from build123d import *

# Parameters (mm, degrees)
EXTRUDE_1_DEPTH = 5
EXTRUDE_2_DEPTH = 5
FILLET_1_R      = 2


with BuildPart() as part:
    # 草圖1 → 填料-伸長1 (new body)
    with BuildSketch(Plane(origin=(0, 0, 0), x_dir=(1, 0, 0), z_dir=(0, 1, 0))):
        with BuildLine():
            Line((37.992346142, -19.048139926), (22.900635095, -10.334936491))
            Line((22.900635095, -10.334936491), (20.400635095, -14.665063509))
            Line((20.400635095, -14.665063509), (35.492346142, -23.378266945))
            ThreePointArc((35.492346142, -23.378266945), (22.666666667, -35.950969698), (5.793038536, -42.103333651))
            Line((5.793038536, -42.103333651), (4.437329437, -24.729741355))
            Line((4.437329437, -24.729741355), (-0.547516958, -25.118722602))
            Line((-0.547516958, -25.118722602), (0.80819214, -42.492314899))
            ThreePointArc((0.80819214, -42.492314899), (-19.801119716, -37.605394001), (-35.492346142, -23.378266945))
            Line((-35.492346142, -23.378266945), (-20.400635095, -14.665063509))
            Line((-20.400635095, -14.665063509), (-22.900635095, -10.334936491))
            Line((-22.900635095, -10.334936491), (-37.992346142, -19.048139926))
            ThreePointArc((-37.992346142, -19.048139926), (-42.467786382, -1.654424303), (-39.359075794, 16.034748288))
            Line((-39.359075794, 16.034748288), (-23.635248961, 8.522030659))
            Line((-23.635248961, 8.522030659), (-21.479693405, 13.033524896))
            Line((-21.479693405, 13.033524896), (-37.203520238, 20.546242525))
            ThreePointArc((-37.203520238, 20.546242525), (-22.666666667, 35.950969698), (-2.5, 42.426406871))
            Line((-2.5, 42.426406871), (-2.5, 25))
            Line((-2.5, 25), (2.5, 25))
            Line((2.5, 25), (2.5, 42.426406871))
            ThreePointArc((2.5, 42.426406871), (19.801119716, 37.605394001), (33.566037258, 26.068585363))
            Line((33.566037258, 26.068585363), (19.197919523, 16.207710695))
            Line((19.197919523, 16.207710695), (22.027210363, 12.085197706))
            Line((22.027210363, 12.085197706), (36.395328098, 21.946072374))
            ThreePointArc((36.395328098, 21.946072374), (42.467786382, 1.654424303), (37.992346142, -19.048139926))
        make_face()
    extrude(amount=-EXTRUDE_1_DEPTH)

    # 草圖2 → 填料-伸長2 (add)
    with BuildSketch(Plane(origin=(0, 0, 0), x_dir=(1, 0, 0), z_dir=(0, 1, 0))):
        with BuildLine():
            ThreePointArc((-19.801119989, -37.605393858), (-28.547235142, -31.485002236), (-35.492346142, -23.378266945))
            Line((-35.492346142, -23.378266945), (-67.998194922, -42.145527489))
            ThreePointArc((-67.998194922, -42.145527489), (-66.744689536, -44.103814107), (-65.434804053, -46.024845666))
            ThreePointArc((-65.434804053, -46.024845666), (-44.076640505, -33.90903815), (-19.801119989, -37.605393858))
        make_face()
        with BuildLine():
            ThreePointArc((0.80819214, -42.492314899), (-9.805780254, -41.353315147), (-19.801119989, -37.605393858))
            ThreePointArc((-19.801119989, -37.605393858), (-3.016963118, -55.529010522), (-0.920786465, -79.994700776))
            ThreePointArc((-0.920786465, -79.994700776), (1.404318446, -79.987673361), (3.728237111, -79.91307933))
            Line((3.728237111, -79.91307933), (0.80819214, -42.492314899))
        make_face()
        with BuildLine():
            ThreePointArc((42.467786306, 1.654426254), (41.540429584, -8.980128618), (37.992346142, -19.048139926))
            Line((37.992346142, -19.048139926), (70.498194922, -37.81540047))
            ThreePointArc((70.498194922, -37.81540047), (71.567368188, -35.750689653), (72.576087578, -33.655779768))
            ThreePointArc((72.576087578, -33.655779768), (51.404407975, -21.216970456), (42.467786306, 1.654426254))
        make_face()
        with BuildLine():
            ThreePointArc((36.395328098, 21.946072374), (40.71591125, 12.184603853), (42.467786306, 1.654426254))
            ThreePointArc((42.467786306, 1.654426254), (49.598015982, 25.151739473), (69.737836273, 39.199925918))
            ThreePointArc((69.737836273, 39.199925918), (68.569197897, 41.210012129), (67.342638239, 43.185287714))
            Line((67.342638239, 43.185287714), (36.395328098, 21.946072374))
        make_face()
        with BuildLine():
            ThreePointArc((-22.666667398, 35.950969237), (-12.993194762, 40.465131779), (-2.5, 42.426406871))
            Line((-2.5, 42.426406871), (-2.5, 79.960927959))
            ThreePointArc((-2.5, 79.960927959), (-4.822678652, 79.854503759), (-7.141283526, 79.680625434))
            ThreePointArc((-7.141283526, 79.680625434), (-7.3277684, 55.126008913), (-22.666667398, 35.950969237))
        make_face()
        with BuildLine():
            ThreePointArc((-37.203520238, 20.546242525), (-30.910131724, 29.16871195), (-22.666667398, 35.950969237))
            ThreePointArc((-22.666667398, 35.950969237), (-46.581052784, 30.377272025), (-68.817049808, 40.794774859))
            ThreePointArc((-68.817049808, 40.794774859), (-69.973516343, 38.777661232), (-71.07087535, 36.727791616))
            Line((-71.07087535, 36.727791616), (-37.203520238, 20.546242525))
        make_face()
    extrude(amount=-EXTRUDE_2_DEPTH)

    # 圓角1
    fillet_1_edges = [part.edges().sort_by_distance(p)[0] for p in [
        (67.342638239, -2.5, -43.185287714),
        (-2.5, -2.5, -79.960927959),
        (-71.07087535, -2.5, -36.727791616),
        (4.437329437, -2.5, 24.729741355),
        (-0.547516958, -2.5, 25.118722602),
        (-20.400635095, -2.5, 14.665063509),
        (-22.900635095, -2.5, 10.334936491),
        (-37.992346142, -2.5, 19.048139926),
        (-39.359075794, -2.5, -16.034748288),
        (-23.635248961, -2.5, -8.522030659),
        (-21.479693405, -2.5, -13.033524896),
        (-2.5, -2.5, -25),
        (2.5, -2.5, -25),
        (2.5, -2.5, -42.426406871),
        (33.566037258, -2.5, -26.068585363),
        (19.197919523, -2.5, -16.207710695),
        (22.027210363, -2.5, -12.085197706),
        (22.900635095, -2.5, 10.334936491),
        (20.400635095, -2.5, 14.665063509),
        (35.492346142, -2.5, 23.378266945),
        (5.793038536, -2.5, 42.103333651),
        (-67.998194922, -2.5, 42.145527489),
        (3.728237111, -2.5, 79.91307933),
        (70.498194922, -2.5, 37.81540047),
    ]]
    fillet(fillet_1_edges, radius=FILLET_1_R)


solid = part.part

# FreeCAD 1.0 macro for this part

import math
import FreeCAD as App
import Part
import Sketcher

V = App.Vector
Q = App.Units.Quantity


def edges_at(feature, points):
    """Names of the edges that pass closest to the given points."""
    edges = feature.Shape.Edges
    near = lambda p: min(range(len(edges)), key=lambda i: edges[i].distToShape(Part.Vertex(*p))[0])
    return sorted({f"Edge{near(p) + 1}" for p in points})

doc = App.newDocument("Part")
params = doc.addObject("Spreadsheet::Sheet", "Params")
for row, (alias, value) in enumerate([
    ("sketch1_radius", "42.5 mm"),
    ("sketch1_width", "5 mm"),
    ("sketch1_length", "5 mm"),
    ("pad1_length", "5 mm"),
    ("sketch2_radius", "79.999999 mm"),
    ("sketch2_radius2", "42.5 mm"),
    ("sketch2_radius3", "37.5 mm"),
    ("sketch2_width", "19.999999 mm"),
    ("pad2_length", "5 mm"),
    ("fillet_radius", "2 mm"),
], start=1):
    params.set(f"A{row}", alias)
    params.set(f"B{row}", "=" + value)
    params.setAlias(f"B{row}", alias)

body = doc.addObject("PartDesign::Body", "Body")

# Sketch on XZ plane
sketch1 = doc.addObject("Sketcher::SketchObject", "Sketch")
body.addObject(sketch1)
sketch1.AttachmentSupport = (doc.XZ_Plane, [""])
sketch1.MapMode = "FlatFace"
sketch1.addGeometry(Part.LineSegment(V(22.9, 10.3, 0), V(38, 19, 0)), False)
sketch1.addGeometry(Part.ArcOfCircle(Part.Circle(V(0, 0, 0), V(0, 0, 1), 42.5), math.radians(-31), math.radians(27)), False)
sketch1.addGeometry(Part.LineSegment(V(36.4, -21.9, 0), V(22, -12.1, 0)), False)
sketch1.addGeometry(Part.LineSegment(V(22, -12.1, 0), V(19.2, -16.2, 0)), False)
sketch1.addGeometry(Part.LineSegment(V(19.2, -16.2, 0), V(33.6, -26.1, 0)), False)
sketch1.addGeometry(Part.ArcOfCircle(Part.Circle(V(0, 0, 0), V(0, 0, 1), 42.5), math.radians(-87), math.radians(-38)), False)
sketch1.addGeometry(Part.LineSegment(V(2.5, -42.4, 0), V(2.5, -25, 0)), False)
sketch1.addGeometry(Part.LineSegment(V(2.5, -25, 0), V(-2.5, -25, 0)), False)
sketch1.addGeometry(Part.LineSegment(V(-2.5, -25, 0), V(-2.5, -42.4, 0)), False)
sketch1.addGeometry(Part.ArcOfCircle(Part.Circle(V(0, 0, 0), V(0, 0, 1), 42.5), math.radians(-151), math.radians(-93)), False)
sketch1.addGeometry(Part.LineSegment(V(-37.2, -20.5, 0), V(-21.5, -13, 0)), False)
sketch1.addGeometry(Part.LineSegment(V(-21.5, -13, 0), V(-23.6, -8.5, 0)), False)
sketch1.addGeometry(Part.LineSegment(V(-23.6, -8.5, 0), V(-39.4, -16, 0)), False)
sketch1.addGeometry(Part.ArcOfCircle(Part.Circle(V(0, 0, 0), V(0, 0, 1), 42.5), math.radians(153), math.radians(202)), False)
sketch1.addGeometry(Part.LineSegment(V(-38, 19, 0), V(-22.9, 10.3, 0)), False)
sketch1.addGeometry(Part.LineSegment(V(-22.9, 10.3, 0), V(-20.4, 14.7, 0)), False)
sketch1.addGeometry(Part.LineSegment(V(-20.4, 14.7, 0), V(-35.5, 23.4, 0)), False)
sketch1.addGeometry(Part.ArcOfCircle(Part.Circle(V(0, 0, 0), V(0, 0, 1), 42.5), math.radians(89), math.radians(147)), False)
sketch1.addGeometry(Part.LineSegment(V(0.8, 42.5, 0), V(-0.5, 25.1, 0)), False)
sketch1.addGeometry(Part.LineSegment(V(-0.5, 25.1, 0), V(4.4, 24.7, 0)), False)
sketch1.addGeometry(Part.LineSegment(V(4.4, 24.7, 0), V(5.8, 42.1, 0)), False)
sketch1.addGeometry(Part.ArcOfCircle(Part.Circle(V(0, 0, 0), V(0, 0, 1), 42.5), math.radians(33), math.radians(82)), False)
sketch1.addGeometry(Part.LineSegment(V(35.5, 23.4, 0), V(20.4, 14.7, 0)), False)
sketch1.addGeometry(Part.LineSegment(V(20.4, 14.7, 0), V(22.9, 10.3, 0)), False)
sketch1.addConstraint(Sketcher.Constraint("Coincident", 0, 2, 1, 2))
sketch1.addConstraint(Sketcher.Constraint("Coincident", 1, 1, 2, 1))
sketch1.addConstraint(Sketcher.Constraint("Coincident", 2, 2, 3, 1))
sketch1.addConstraint(Sketcher.Constraint("Coincident", 3, 2, 4, 1))
sketch1.addConstraint(Sketcher.Constraint("Coincident", 4, 2, 5, 2))
sketch1.addConstraint(Sketcher.Constraint("Coincident", 5, 1, 6, 1))
sketch1.addConstraint(Sketcher.Constraint("Coincident", 6, 2, 7, 1))
sketch1.addConstraint(Sketcher.Constraint("Coincident", 7, 2, 8, 1))
sketch1.addConstraint(Sketcher.Constraint("Coincident", 8, 2, 9, 2))
sketch1.addConstraint(Sketcher.Constraint("Coincident", 9, 1, 10, 1))
sketch1.addConstraint(Sketcher.Constraint("Coincident", 10, 2, 11, 1))
sketch1.addConstraint(Sketcher.Constraint("Coincident", 11, 2, 12, 1))
sketch1.addConstraint(Sketcher.Constraint("Coincident", 12, 2, 13, 2))
sketch1.addConstraint(Sketcher.Constraint("Coincident", 13, 1, 14, 1))
sketch1.addConstraint(Sketcher.Constraint("Coincident", 14, 2, 15, 1))
sketch1.addConstraint(Sketcher.Constraint("Coincident", 15, 2, 16, 1))
sketch1.addConstraint(Sketcher.Constraint("Coincident", 16, 2, 17, 2))
sketch1.addConstraint(Sketcher.Constraint("Coincident", 17, 1, 18, 1))
sketch1.addConstraint(Sketcher.Constraint("Coincident", 18, 2, 19, 1))
sketch1.addConstraint(Sketcher.Constraint("Coincident", 19, 2, 20, 1))
sketch1.addConstraint(Sketcher.Constraint("Coincident", 20, 2, 21, 2))
sketch1.addConstraint(Sketcher.Constraint("Coincident", 21, 1, 22, 1))
sketch1.addConstraint(Sketcher.Constraint("Coincident", 22, 2, 23, 1))
sketch1.addConstraint(Sketcher.Constraint("Coincident", 23, 2, 0, 1))
sketch1.addConstraint(Sketcher.Constraint("Vertical", 6))
sketch1.addConstraint(Sketcher.Constraint("Horizontal", 7))
sketch1.addConstraint(Sketcher.Constraint("Vertical", 8))
sketch1.addConstraint(Sketcher.Constraint("Coincident", 1, 3, -1, 1))
sketch1.addConstraint(Sketcher.Constraint("Coincident", 5, 3, -1, 1))
sketch1.addConstraint(Sketcher.Constraint("Coincident", 9, 3, -1, 1))
sketch1.addConstraint(Sketcher.Constraint("Coincident", 13, 3, -1, 1))
sketch1.addConstraint(Sketcher.Constraint("Coincident", 17, 3, -1, 1))
sketch1.addConstraint(Sketcher.Constraint("Coincident", 21, 3, -1, 1))
sketch1.addConstraint(Sketcher.Constraint("Equal", 1, 5))
sketch1.addConstraint(Sketcher.Constraint("Equal", 5, 9))
sketch1.addConstraint(Sketcher.Constraint("Equal", 9, 13))
sketch1.addConstraint(Sketcher.Constraint("Equal", 13, 17))
sketch1.addConstraint(Sketcher.Constraint("Equal", 17, 21))
sketch1.addConstraint(Sketcher.Constraint("Symmetric", 15, 2, 22, 2, -2))
sketch1.addConstraint(Sketcher.Constraint("Symmetric", 14, 2, 23, 2, -2))
sketch1.addConstraint(Sketcher.Constraint("Perpendicular", 2, 3))
sketch1.addConstraint(Sketcher.Constraint("Perpendicular", 3, 4))
sketch1.addConstraint(Sketcher.Constraint("Perpendicular", 10, 11))
sketch1.addConstraint(Sketcher.Constraint("Perpendicular", 11, 12))
sketch1.addConstraint(Sketcher.Constraint("Perpendicular", 14, 15))
sketch1.addConstraint(Sketcher.Constraint("Perpendicular", 15, 16))
sketch1.addConstraint(Sketcher.Constraint("Perpendicular", 18, 19))
sketch1.addConstraint(Sketcher.Constraint("Perpendicular", 19, 20))
sketch1.addConstraint(Sketcher.Constraint("Parallel", 0, 22))
sketch1.addConstraint(Sketcher.Constraint("Perpendicular", 22, 23))
sketch1.addConstraint(Sketcher.Constraint("Horizontal", 5, 1, 8, 2))
sketch1.addConstraint(Sketcher.Constraint("Equal", 0, 2))
sketch1.addConstraint(Sketcher.Constraint("Equal", 2, 4))
sketch1.addConstraint(Sketcher.Constraint("Equal", 4, 10))
sketch1.addConstraint(Sketcher.Constraint("Equal", 3, 11))
sketch1.addConstraint(Sketcher.Constraint("Equal", 10, 12))
sketch1.addConstraint(Sketcher.Constraint("Equal", 11, 15))
sketch1.addConstraint(Sketcher.Constraint("Equal", 14, 16))
sketch1.addConstraint(Sketcher.Constraint("Equal", 16, 18))
sketch1.addConstraint(Sketcher.Constraint("Equal", 15, 19))
sketch1.addConstraint(Sketcher.Constraint("Equal", 18, 20))
sketch1.addConstraint(Sketcher.Constraint("Radius", 1, 42.5))
sketch1.addConstraint(Sketcher.Constraint("DistanceX", 7, 2, 7, 1, 5.0))
sketch1.addConstraint(Sketcher.Constraint("Angle", 0, Q("30 deg")))
sketch1.addConstraint(Sketcher.Constraint("Distance", 3, 5.0))
sketch1.addConstraint(Sketcher.Constraint("DistanceY", 6, 2, -1, 1, 25.0))
sketch1.addConstraint(Sketcher.Constraint("DistanceX", -1, 1, 1, 1, 36.395328))
sketch1.addConstraint(Sketcher.Constraint("DistanceX", -1, 1, 2, 2, 22.02721))
sketch1.addConstraint(Sketcher.Constraint("DistanceX", 9, 1, -1, 1, 37.20352))
sketch1.addConstraint(Sketcher.Constraint("DistanceX", -1, 1, 19, 2, 4.437329))
sketch1.setExpression("Constraints[61]", "Params.sketch1_radius")
sketch1.setExpression("Constraints[62]", "Params.sketch1_width")
sketch1.setExpression("Constraints[64]", "Params.sketch1_length")
pad1 = doc.addObject("PartDesign::Pad", "Pad")
body.addObject(pad1)
pad1.Profile = sketch1
pad1.setExpression("Length", "Params.pad1_length")

# Sketch on XZ plane
sketch2 = doc.addObject("Sketcher::SketchObject", "Sketch001")
body.addObject(sketch2)
sketch2.AttachmentSupport = (doc.XZ_Plane, [""])
sketch2.MapMode = "FlatFace"
sketch2.addGeometry(Part.ArcOfCircle(Part.Circle(V(0, 0, 0), V(0, 0, 1), 42.5), math.radians(118), math.radians(147)), False)
sketch2.addGeometry(Part.LineSegment(V(-35.5, 23.4, 0), V(-68, 42.1, 0)), False)
sketch2.addGeometry(Part.ArcOfCircle(Part.Circle(V(0, 0, 0), V(0, 0, 1), 80), math.radians(144.88), math.radians(148.21)), False)
sketch2.addGeometry(Part.ArcOfCircle(Part.Circle(V(-37.3, 70.8, 0), V(0, 0, 1), 37.5), math.radians(-139), math.radians(-62)), False)
sketch2.addGeometry(Part.ArcOfCircle(Part.Circle(V(0, 0, 0), V(0, 0, 1), 42.5), math.radians(89), math.radians(118)), False)
sketch2.addGeometry(Part.ArcOfCircle(Part.Circle(V(-37.3, 70.8, 0), V(0, 0, 1), 37.5), math.radians(-62), math.radians(14)), False)
sketch2.addGeometry(Part.ArcOfCircle(Part.Circle(V(0, 0, 0), V(0, 0, 1), 80), math.radians(87.33), math.radians(90.66)), False)
sketch2.addGeometry(Part.LineSegment(V(3.7, 79.9, 0), V(0.8, 42.5, 0)), False)
sketch2.addGeometry(Part.ArcOfCircle(Part.Circle(V(0, 0, 0), V(0, 0, 1), 42.5), math.radians(-2), math.radians(27)), False)
sketch2.addGeometry(Part.LineSegment(V(38, 19, 0), V(70.5, 37.8, 0)), False)
sketch2.addGeometry(Part.ArcOfCircle(Part.Circle(V(0, 0, 0), V(0, 0, 1), 80), math.radians(24.88), math.radians(28.21)), False)
sketch2.addGeometry(Part.ArcOfCircle(Part.Circle(V(79.9, -3.1, 0), V(0, 0, 1), 37.5), math.radians(101), math.radians(178)), False)
sketch2.addGeometry(Part.ArcOfCircle(Part.Circle(V(0, 0, 0), V(0, 0, 1), 42.5), math.radians(-31), math.radians(-2)), False)
sketch2.addGeometry(Part.ArcOfCircle(Part.Circle(V(79.9, -3.1, 0), V(0, 0, 1), 37.5), math.radians(178), math.radians(254)), False)
sketch2.addGeometry(Part.ArcOfCircle(Part.Circle(V(0, 0, 0), V(0, 0, 1), 80), math.radians(-32.67), math.radians(-29.34)), False)
sketch2.addGeometry(Part.LineSegment(V(67.3, -43.2, 0), V(36.4, -21.9, 0)), False)
sketch2.addGeometry(Part.ArcOfCircle(Part.Circle(V(0, 0, 0), V(0, 0, 1), 42.5), math.radians(-122), math.radians(-93)), False)
sketch2.addGeometry(Part.LineSegment(V(-2.5, -42.4, 0), V(-2.5, -80, 0)), False)
sketch2.addGeometry(Part.ArcOfCircle(Part.Circle(V(0, 0, 0), V(0, 0, 1), 80), math.radians(-95.12), math.radians(-91.79)), False)
sketch2.addGeometry(Part.ArcOfCircle(Part.Circle(V(-42.7, -67.7, 0), V(0, 0, 1), 37.5), math.radians(-19), math.radians(58)), False)
sketch2.addGeometry(Part.ArcOfCircle(Part.Circle(V(0, 0, 0), V(0, 0, 1), 42.5), math.radians(-151), math.radians(-122)), False)
sketch2.addGeometry(Part.ArcOfCircle(Part.Circle(V(-42.7, -67.7, 0), V(0, 0, 1), 37.5), math.radians(58), math.radians(134)), False)
sketch2.addGeometry(Part.ArcOfCircle(Part.Circle(V(0, 0, 0), V(0, 0, 1), 80), math.radians(-152.67), math.radians(-149.34)), False)
sketch2.addGeometry(Part.LineSegment(V(-71.1, -36.7, 0), V(-37.2, -20.5, 0)), False)
sketch2.addConstraint(Sketcher.Constraint("Coincident", 0, 2, 1, 1))
sketch2.addConstraint(Sketcher.Constraint("Coincident", 1, 2, 2, 2))
sketch2.addConstraint(Sketcher.Constraint("Coincident", 2, 1, 3, 1))
sketch2.addConstraint(Sketcher.Constraint("Tangent", 3, 2, 0, 1))
sketch2.addConstraint(Sketcher.Constraint("Tangent", 4, 2, 5, 1))
sketch2.addConstraint(Sketcher.Constraint("Coincident", 5, 2, 6, 2))
sketch2.addConstraint(Sketcher.Constraint("Coincident", 6, 1, 7, 1))
sketch2.addConstraint(Sketcher.Constraint("Coincident", 7, 2, 4, 1))
sketch2.addConstraint(Sketcher.Constraint("Coincident", 8, 2, 9, 1))
sketch2.addConstraint(Sketcher.Constraint("Coincident", 9, 2, 10, 2))
sketch2.addConstraint(Sketcher.Constraint("Coincident", 10, 1, 11, 1))
sketch2.addConstraint(Sketcher.Constraint("Tangent", 11, 2, 8, 1))
sketch2.addConstraint(Sketcher.Constraint("Tangent", 12, 2, 13, 1))
sketch2.addConstraint(Sketcher.Constraint("Coincident", 13, 2, 14, 2))
sketch2.addConstraint(Sketcher.Constraint("Coincident", 14, 1, 15, 1))
sketch2.addConstraint(Sketcher.Constraint("Coincident", 15, 2, 12, 1))
sketch2.addConstraint(Sketcher.Constraint("Coincident", 16, 2, 17, 1))
sketch2.addConstraint(Sketcher.Constraint("Coincident", 17, 2, 18, 2))
sketch2.addConstraint(Sketcher.Constraint("Coincident", 18, 1, 19, 1))
sketch2.addConstraint(Sketcher.Constraint("Tangent", 19, 2, 16, 1))
sketch2.addConstraint(Sketcher.Constraint("Tangent", 20, 2, 21, 1))
sketch2.addConstraint(Sketcher.Constraint("Coincident", 21, 2, 22, 2))
sketch2.addConstraint(Sketcher.Constraint("Coincident", 22, 1, 23, 1))
sketch2.addConstraint(Sketcher.Constraint("Coincident", 23, 2, 20, 1))
sketch2.addConstraint(Sketcher.Constraint("Vertical", 17))
sketch2.addConstraint(Sketcher.Constraint("Coincident", 0, 3, -1, 1))
sketch2.addConstraint(Sketcher.Constraint("Coincident", 2, 3, -1, 1))
sketch2.addConstraint(Sketcher.Constraint("Coincident", 4, 3, -1, 1))
sketch2.addConstraint(Sketcher.Constraint("Coincident", 6, 3, -1, 1))
sketch2.addConstraint(Sketcher.Constraint("Coincident", 8, 3, -1, 1))
sketch2.addConstraint(Sketcher.Constraint("Coincident", 10, 3, -1, 1))
sketch2.addConstraint(Sketcher.Constraint("Coincident", 12, 3, -1, 1))
sketch2.addConstraint(Sketcher.Constraint("Coincident", 14, 3, -1, 1))
sketch2.addConstraint(Sketcher.Constraint("Coincident", 16, 3, -1, 1))
sketch2.addConstraint(Sketcher.Constraint("Coincident", 18, 3, -1, 1))
sketch2.addConstraint(Sketcher.Constraint("Coincident", 20, 3, -1, 1))
sketch2.addConstraint(Sketcher.Constraint("Coincident", 22, 3, -1, 1))
sketch2.addConstraint(Sketcher.Constraint("Coincident", 5, 3, 3, 3))
sketch2.addConstraint(Sketcher.Constraint("Coincident", 13, 3, 11, 3))
sketch2.addConstraint(Sketcher.Constraint("Coincident", 21, 3, 19, 3))
sketch2.addConstraint(Sketcher.Constraint("Equal", 0, 4))
sketch2.addConstraint(Sketcher.Constraint("Equal", 2, 6))
sketch2.addConstraint(Sketcher.Constraint("Equal", 4, 8))
sketch2.addConstraint(Sketcher.Constraint("Equal", 6, 10))
sketch2.addConstraint(Sketcher.Constraint("Equal", 5, 11))
sketch2.addConstraint(Sketcher.Constraint("Equal", 8, 12))
sketch2.addConstraint(Sketcher.Constraint("Equal", 6, 14))
sketch2.addConstraint(Sketcher.Constraint("Equal", 12, 16))
sketch2.addConstraint(Sketcher.Constraint("Equal", 14, 18))
sketch2.addConstraint(Sketcher.Constraint("Equal", 13, 19))
sketch2.addConstraint(Sketcher.Constraint("Equal", 16, 20))
sketch2.addConstraint(Sketcher.Constraint("Equal", 18, 22))
sketch2.addConstraint(Sketcher.Constraint("Equal", 1, 7))
sketch2.addConstraint(Sketcher.Constraint("Equal", 7, 9))
sketch2.addConstraint(Sketcher.Constraint("Equal", 9, 15))
sketch2.addConstraint(Sketcher.Constraint("Equal", 15, 23))
sketch2.addConstraint(Sketcher.Constraint("Radius", 2, 79.999999))
sketch2.addConstraint(Sketcher.Constraint("Radius", 0, 42.5))
sketch2.addConstraint(Sketcher.Constraint("Radius", 3, 37.5))
sketch2.addConstraint(Sketcher.Constraint("Angle", 1, Q("150 deg")))
sketch2.addConstraint(Sketcher.Constraint("Angle", 9, Q("30 deg")))
sketch2.addConstraint(Sketcher.Constraint("DistanceX", 19, 3, 19, 2, 19.999999))
sketch2.addConstraint(Sketcher.Constraint("DistanceX", 16, 2, -1, 1, 2.5))
sketch2.addConstraint(Sketcher.Constraint("DistanceY", -1, 1, 9, 2, 37.8154))
sketch2.addConstraint(Sketcher.Constraint("DistanceX", 1, 2, 3, 3, 30.725499))
sketch2.addConstraint(Sketcher.Constraint("DistanceY", 13, 2, 12, 2, 37.5455))
sketch2.addConstraint(Sketcher.Constraint("DistanceX", 14, 1, 13, 2, 2.395198))
sketch2.addConstraint(Sketcher.Constraint("DistanceY", -1, 1, 6, 1, 79.913079))
sketch2.addConstraint(Sketcher.Constraint("DistanceY", 22, 1, -1, 1, 36.727792))
sketch2.setExpression("Constraints[56]", "Params.sketch2_radius")
sketch2.setExpression("Constraints[57]", "Params.sketch2_radius2")
sketch2.setExpression("Constraints[58]", "Params.sketch2_radius3")
sketch2.setExpression("Constraints[61]", "Params.sketch2_width")
pad2 = doc.addObject("PartDesign::Pad", "Pad001")
body.addObject(pad2)
pad2.Profile = sketch2
pad2.setExpression("Length", "Params.pad2_length")
doc.recompute()

fillet = doc.addObject("PartDesign::Fillet", "Fillet")
body.addObject(fillet)
fillet.Base = (pad2, edges_at(pad2, [
    (67.343, -2.5, -43.185),
    (-2.5, -2.5, -79.961),
    (-71.071, -2.5, -36.728),
    (4.437, -2.5, 24.73),
    (-0.548, -2.5, 25.119),
    (-20.401, -2.5, 14.665),
    (-22.901, -2.5, 10.335),
    (-37.992, -2.5, 19.048),
    (-39.359, -2.5, -16.035),
    (-23.635, -2.5, -8.522),
    (-21.48, -2.5, -13.034),
    (-2.5, -2.5, -25),
    (2.5, -2.5, -25),
    (2.5, -2.5, -42.426),
    (33.566, -2.5, -26.069),
    (19.198, -2.5, -16.208),
    (22.027, -2.5, -12.085),
    (22.901, -2.5, 10.335),
    (20.401, -2.5, 14.665),
    (35.492, -2.5, 23.378),
    (5.793, -2.5, 42.103),
    (-67.998, -2.5, 42.146),
    (3.728, -2.5, 79.913),
    (70.498, -2.5, 37.815),
]))
fillet.setExpression("Radius", "Params.fillet_radius")

doc.recompute()
